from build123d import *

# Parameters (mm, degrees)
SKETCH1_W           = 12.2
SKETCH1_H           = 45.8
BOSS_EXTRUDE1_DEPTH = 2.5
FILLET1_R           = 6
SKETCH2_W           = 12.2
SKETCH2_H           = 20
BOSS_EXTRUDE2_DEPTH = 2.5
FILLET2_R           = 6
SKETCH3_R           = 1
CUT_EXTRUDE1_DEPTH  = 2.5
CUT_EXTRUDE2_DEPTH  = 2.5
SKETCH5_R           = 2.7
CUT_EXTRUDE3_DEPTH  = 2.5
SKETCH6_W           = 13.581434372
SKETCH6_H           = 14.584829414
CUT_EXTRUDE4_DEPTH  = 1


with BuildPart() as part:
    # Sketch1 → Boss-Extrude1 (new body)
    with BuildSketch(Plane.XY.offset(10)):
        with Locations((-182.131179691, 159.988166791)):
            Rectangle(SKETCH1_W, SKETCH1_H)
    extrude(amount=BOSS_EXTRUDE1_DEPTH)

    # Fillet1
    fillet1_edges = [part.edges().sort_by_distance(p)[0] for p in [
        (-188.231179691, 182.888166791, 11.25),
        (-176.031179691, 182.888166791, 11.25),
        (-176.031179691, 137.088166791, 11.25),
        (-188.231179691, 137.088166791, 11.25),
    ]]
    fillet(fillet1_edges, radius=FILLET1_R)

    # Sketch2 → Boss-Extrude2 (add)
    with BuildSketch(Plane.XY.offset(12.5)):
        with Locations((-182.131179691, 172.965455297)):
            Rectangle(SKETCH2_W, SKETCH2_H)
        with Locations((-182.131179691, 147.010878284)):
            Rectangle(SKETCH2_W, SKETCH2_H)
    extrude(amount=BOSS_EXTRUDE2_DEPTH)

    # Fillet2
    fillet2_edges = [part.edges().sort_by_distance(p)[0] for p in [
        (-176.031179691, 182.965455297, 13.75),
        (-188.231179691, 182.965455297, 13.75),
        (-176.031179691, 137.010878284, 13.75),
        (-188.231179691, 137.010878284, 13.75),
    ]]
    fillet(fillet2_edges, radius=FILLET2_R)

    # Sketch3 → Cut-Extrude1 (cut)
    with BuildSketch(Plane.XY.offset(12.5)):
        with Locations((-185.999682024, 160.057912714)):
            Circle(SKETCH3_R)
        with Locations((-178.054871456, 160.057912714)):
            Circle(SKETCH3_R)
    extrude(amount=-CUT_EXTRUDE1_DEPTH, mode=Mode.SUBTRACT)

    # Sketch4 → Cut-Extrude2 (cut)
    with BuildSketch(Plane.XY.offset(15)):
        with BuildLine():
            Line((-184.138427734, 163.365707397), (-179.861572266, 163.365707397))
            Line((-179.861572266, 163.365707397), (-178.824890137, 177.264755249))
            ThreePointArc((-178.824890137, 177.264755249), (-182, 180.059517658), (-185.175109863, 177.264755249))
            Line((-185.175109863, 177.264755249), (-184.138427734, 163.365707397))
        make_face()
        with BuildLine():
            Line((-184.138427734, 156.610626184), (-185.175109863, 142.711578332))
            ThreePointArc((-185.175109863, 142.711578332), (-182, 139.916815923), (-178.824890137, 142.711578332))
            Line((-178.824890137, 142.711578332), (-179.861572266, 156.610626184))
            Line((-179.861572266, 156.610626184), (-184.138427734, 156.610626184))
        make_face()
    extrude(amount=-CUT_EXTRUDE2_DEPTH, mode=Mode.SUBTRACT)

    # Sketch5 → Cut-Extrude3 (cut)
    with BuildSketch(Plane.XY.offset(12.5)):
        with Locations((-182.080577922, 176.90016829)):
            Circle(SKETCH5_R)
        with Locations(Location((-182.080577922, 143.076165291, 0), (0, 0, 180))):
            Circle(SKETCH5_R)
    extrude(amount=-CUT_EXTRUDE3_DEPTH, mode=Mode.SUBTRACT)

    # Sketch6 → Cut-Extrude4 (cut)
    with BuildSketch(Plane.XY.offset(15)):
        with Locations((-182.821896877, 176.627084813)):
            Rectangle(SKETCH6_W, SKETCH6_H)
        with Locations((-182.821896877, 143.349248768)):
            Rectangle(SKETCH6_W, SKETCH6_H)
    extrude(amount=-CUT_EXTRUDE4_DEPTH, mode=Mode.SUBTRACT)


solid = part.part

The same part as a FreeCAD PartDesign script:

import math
import FreeCAD as App
import Part
import Sketcher

V = App.Vector


def edges_at(feature, points):
    """Names of the edges that pass closest to the given points."""
    edges = feature.Shape.Edges
    near = lambda p: min(range(len(edges)), key=lambda i: edges[i].distToShape(Part.Vertex(*p))[0])
    return sorted({f"Edge{near(p) + 1}" for p in points})


def add_polygon(sketch, points):
    """Adds a closed chain of lines whose ends are joined by coincident constraints."""
    first, n = sketch.GeometryCount, len(points)
    for a, b in zip(points, points[1:] + points[:1]):
        sketch.addGeometry(Part.LineSegment(App.Vector(*a, 0), App.Vector(*b, 0)), False)
    for i in range(n):
        sketch.addConstraint(Sketcher.Constraint("Coincident", first + i, 2, first + (i + 1) % n, 1))

doc = App.newDocument("Part")
params = doc.addObject("Spreadsheet::Sheet", "Params")
for row, (alias, value) in enumerate([
    ("sketch1_width", "12.2 mm"),
    ("sketch1_height", "45.8 mm"),
    ("pad1_length", "2.5 mm"),
    ("fillet_radius", "6 mm"),
    ("sketch2_height", "20 mm"),
    ("sketch2_width", "12.2 mm"),
    ("pad2_length", "2.5 mm"),
    ("fillet2_radius", "6 mm"),
    ("sketch3_diameter", "2 mm"),
    ("pocket1_length", "2.5 mm"),
    ("pocket2_length", "2.5 mm"),
    ("sketch5_diameter", "5.4 mm"),
    ("pocket3_length", "2.5 mm"),
    ("pocket4_length", "1 mm"),
], start=1):
    params.set(f"A{row}", alias)
    params.set(f"B{row}", "=" + value)
    params.setAlias(f"B{row}", alias)

body = doc.addObject("PartDesign::Body", "Body")

# Sketch on XY plane
sketch1 = doc.addObject("Sketcher::SketchObject", "Sketch")
body.addObject(sketch1)
sketch1.AttachmentSupport = (doc.XY_Plane, [""])
sketch1.MapMode = "FlatFace"
sketch1.AttachmentOffset = App.Placement(V(0, 0, 10), App.Rotation())
add_polygon(sketch1, [(-188.23118, 182.888167), (-188.23118, 137.088167), (-176.03118, 137.088167), (-176.03118, 182.888167)])  # lines 0-3
sketch1.addConstraint([
    Sketcher.Constraint("Vertical", 0),
    Sketcher.Constraint("Horizontal", 1),
    Sketcher.Constraint("Vertical", 2),
    Sketcher.Constraint("Horizontal", 3),
    Sketcher.Constraint("DistanceX", 1, 1, 1, 2, 12.2),
    Sketcher.Constraint("DistanceY", 0, 2, 0, 1, 45.8),
    Sketcher.Constraint("DistanceX", 0, 2, -1, 1, 188.23118),
    Sketcher.Constraint("DistanceY", -1, 1, 0, 2, 137.088167),
])
sketch1.setExpression("Constraints[8]", "Params.sketch1_width")
sketch1.setExpression("Constraints[9]", "Params.sketch1_height")
pad1 = doc.addObject("PartDesign::Pad", "Pad")
body.addObject(pad1)
pad1.Profile = sketch1
pad1.setExpression("Length", "Params.pad1_length")
doc.recompute()

fillet = doc.addObject("PartDesign::Fillet", "Fillet")
body.addObject(fillet)
fillet.Base = (pad1, edges_at(pad1, [
    (-188.231, 182.888, 11.25),
    (-176.031, 182.888, 11.25),
    (-176.031, 137.088, 11.25),
    (-188.231, 137.088, 11.25),
]))
fillet.setExpression("Radius", "Params.fillet_radius")

# Sketch on XY plane
sketch2 = doc.addObject("Sketcher::SketchObject", "Sketch001")
body.addObject(sketch2)
sketch2.AttachmentSupport = (doc.XY_Plane, [""])
sketch2.MapMode = "FlatFace"
sketch2.AttachmentOffset = App.Placement(V(0, 0, 12.5), App.Rotation())
add_polygon(sketch2, [(-188.23118, 182.965455), (-188.23118, 162.965455), (-176.03118, 162.965455), (-176.03118, 182.965455)])  # lines 0-3
add_polygon(sketch2, [(-188.23118, 157.010878), (-188.23118, 137.010878), (-176.03118, 137.010878), (-176.03118, 157.010878)])  # lines 4-7
sketch2.addConstraint([
    Sketcher.Constraint("Vertical", 0),
    Sketcher.Constraint("Horizontal", 1),
    Sketcher.Constraint("Vertical", 2),
    Sketcher.Constraint("Horizontal", 3),
    Sketcher.Constraint("Vertical", 4),
    Sketcher.Constraint("Horizontal", 5),
    Sketcher.Constraint("Vertical", 6),
    Sketcher.Constraint("Horizontal", 7),
    Sketcher.Constraint("Vertical", 3, 2, 4, 2),
    Sketcher.Constraint("Vertical", 2, 2, 5, 2),
    Sketcher.Constraint("Equal", 2, 4),
    Sketcher.Constraint("DistanceY", 0, 2, 0, 1, 20.0),
    Sketcher.Constraint("DistanceX", 1, 1, 1, 2, 12.2),
    Sketcher.Constraint("DistanceX", 0, 2, -1, 1, 188.23118),
    Sketcher.Constraint("DistanceY", -1, 1, 4, 2, 137.010878),
    Sketcher.Constraint("DistanceY", -1, 1, 0, 2, 162.965455),
])
sketch2.setExpression("Constraints[19]", "Params.sketch2_height")
sketch2.setExpression("Constraints[20]", "Params.sketch2_width")
pad2 = doc.addObject("PartDesign::Pad", "Pad001")
body.addObject(pad2)
pad2.Profile = sketch2
pad2.setExpression("Length", "Params.pad2_length")
doc.recompute()

fillet2 = doc.addObject("PartDesign::Fillet", "Fillet001")
body.addObject(fillet2)
fillet2.Base = (pad2, edges_at(pad2, [
    (-176.031, 182.965, 13.75),
    (-188.231, 182.965, 13.75),
    (-176.031, 137.011, 13.75),
    (-188.231, 137.011, 13.75),
]))
fillet2.setExpression("Radius", "Params.fillet2_radius")

# Sketch on XY plane
sketch3 = doc.addObject("Sketcher::SketchObject", "Sketch002")
body.addObject(sketch3)
sketch3.AttachmentSupport = (doc.XY_Plane, [""])
sketch3.MapMode = "FlatFace"
sketch3.AttachmentOffset = App.Placement(V(0, 0, 12.5), App.Rotation())
sketch3.addGeometry([
    Part.Circle(V(-185.999682, 160.057913, 0), V(0, 0, 1), 1),
    Part.Circle(V(-178.054871, 160.057913, 0), V(0, 0, 1), 1),
], False)
sketch3.addConstraint([
    Sketcher.Constraint("Equal", 0, 1),
    Sketcher.Constraint("Horizontal", 0, 3, 1, 3),
    Sketcher.Constraint("Diameter", 0, 2.0),
    Sketcher.Constraint("DistanceX", 1, 3, -1, 1, 178.054871),
    Sketcher.Constraint("DistanceX", 0, 3, 1, 3, 7.944811),
    Sketcher.Constraint("DistanceY", -1, 1, 0, 3, 160.057913),
])
sketch3.setExpression("Constraints[2]", "Params.sketch3_diameter")
pocket1 = doc.addObject("PartDesign::Pocket", "Pocket")
body.addObject(pocket1)
pocket1.Profile = sketch3
pocket1.setExpression("Length", "Params.pocket1_length")

# Sketch on XY plane
sketch4 = doc.addObject("Sketcher::SketchObject", "Sketch003")
body.addObject(sketch4)
sketch4.AttachmentSupport = (doc.XY_Plane, [""])
sketch4.MapMode = "FlatFace"
sketch4.AttachmentOffset = App.Placement(V(0, 0, 15), App.Rotation())
sketch4.addGeometry([
    Part.LineSegment(V(-184.138428, 163.365707, 0), V(-179.861572, 163.365707, 0)),  # 0
    Part.LineSegment(V(-179.861572, 163.365707, 0), V(-178.82489, 177.264755, 0)),  # 1
    Part.ArcOfCircle(Part.Circle(V(-182, 176.858526, 0), V(0, 0, 1), 3.200991), math.radians(7.290906), math.radians(172.709094)),  # 2
    Part.LineSegment(V(-185.17511, 177.264755, 0), V(-184.138428, 163.365707, 0)),  # 3
    Part.LineSegment(V(-184.138428, 156.610626, 0), V(-185.17511, 142.711578, 0)),  # 4
    Part.ArcOfCircle(Part.Circle(V(-182, 143.117807, 0), V(0, 0, 1), 3.200991), math.radians(-172.709094), math.radians(-7.290906)),  # 5
    Part.LineSegment(V(-178.82489, 142.711578, 0), V(-179.861572, 156.610626, 0)),  # 6
    Part.LineSegment(V(-179.861572, 156.610626, 0), V(-184.138428, 156.610626, 0)),  # 7
], False)
sketch4.addConstraint([
    Sketcher.Constraint("Coincident", 0, 2, 1, 1),
    Sketcher.Constraint("Coincident", 1, 2, 2, 1),
    Sketcher.Constraint("Coincident", 2, 2, 3, 1),
    Sketcher.Constraint("Coincident", 3, 2, 0, 1),
    Sketcher.Constraint("Coincident", 4, 2, 5, 1),
    Sketcher.Constraint("Coincident", 5, 2, 6, 1),
    Sketcher.Constraint("Coincident", 6, 2, 7, 1),
    Sketcher.Constraint("Coincident", 7, 2, 4, 1),
    Sketcher.Constraint("Horizontal", 0),
    Sketcher.Constraint("Horizontal", 7),
    Sketcher.Constraint("Equal", 2, 5),
    Sketcher.Constraint("Parallel", 1, 4),
    Sketcher.Constraint("Parallel", 3, 6),
    Sketcher.Constraint("Horizontal", 1, 2, 2, 2),
    Sketcher.Constraint("Horizontal", 4, 2, 5, 2),
    Sketcher.Constraint("Vertical", 2, 3, 5, 3),
    Sketcher.Constraint("Vertical", 2, 2, 4, 2),
    Sketcher.Constraint("Vertical", 0, 2, 6, 2),
    Sketcher.Constraint("Vertical", 3, 2, 7, 2),
    Sketcher.Constraint("DistanceX", 2, 3, -1, 1, 182.0),
    Sketcher.Constraint("Radius", 2, 3.200991),
    Sketcher.Constraint("DistanceY", 5, 3, 0, 2, 20.2479),
    Sketcher.Constraint("DistanceX", 0, 1, 0, 2, 4.276855),
    Sketcher.Constraint("DistanceX", 1, 2, -1, 1, 178.82489),
    Sketcher.Constraint("DistanceY", -1, 1, 4, 2, 142.711578),
    Sketcher.Constraint("DistanceY", 5, 3, 2, 3, 33.740719),
])
pocket2 = doc.addObject("PartDesign::Pocket", "Pocket001")
body.addObject(pocket2)
pocket2.Profile = sketch4
pocket2.setExpression("Length", "Params.pocket2_length")

# Sketch on XY plane
sketch5 = doc.addObject("Sketcher::SketchObject", "Sketch004")
body.addObject(sketch5)
sketch5.AttachmentSupport = (doc.XY_Plane, [""])
sketch5.MapMode = "FlatFace"
sketch5.AttachmentOffset = App.Placement(V(0, 0, 12.5), App.Rotation())
sketch5.addGeometry([
    Part.Circle(V(-182.080578, 176.900168, 0), V(0, 0, 1), 2.7),
    Part.Circle(V(-182.080578, 143.076165, 0), V(0, 0, 1), 2.7),
], False)
sketch5.addConstraint([
    Sketcher.Constraint("Equal", 0, 1),
    Sketcher.Constraint("Vertical", 0, 3, 1, 3),
    Sketcher.Constraint("Diameter", 0, 5.4),
    Sketcher.Constraint("DistanceY", -1, 1, 0, 3, 176.900168),
    Sketcher.Constraint("DistanceX", 0, 3, -1, 1, 182.080578),
    Sketcher.Constraint("DistanceY", -1, 1, 1, 3, 143.076165),
])
sketch5.setExpression("Constraints[2]", "Params.sketch5_diameter")
pocket3 = doc.addObject("PartDesign::Pocket", "Pocket002")
body.addObject(pocket3)
pocket3.Profile = sketch5
pocket3.setExpression("Length", "Params.pocket3_length")

# Sketch on XY plane
sketch6 = doc.addObject("Sketcher::SketchObject", "Sketch005")
body.addObject(sketch6)
sketch6.AttachmentSupport = (doc.XY_Plane, [""])
sketch6.MapMode = "FlatFace"
sketch6.AttachmentOffset = App.Placement(V(0, 0, 15), App.Rotation())
add_polygon(sketch6, [(-189.612614, 183.9195), (-189.612614, 169.33467), (-176.03118, 169.33467), (-176.03118, 183.9195)])  # lines 0-3
add_polygon(sketch6, [(-189.612614, 150.641663), (-189.612614, 136.056834), (-176.03118, 136.056834), (-176.03118, 150.641663)])  # lines 4-7
sketch6.addConstraint([
    Sketcher.Constraint("Vertical", 0),
    Sketcher.Constraint("Horizontal", 1),
    Sketcher.Constraint("Vertical", 2),
    Sketcher.Constraint("Horizontal", 3),
    Sketcher.Constraint("Vertical", 4),
    Sketcher.Constraint("Horizontal", 5),
    Sketcher.Constraint("Vertical", 6),
    Sketcher.Constraint("Horizontal", 7),
    Sketcher.Constraint("Vertical", 3, 2, 4, 2),
    Sketcher.Constraint("Vertical", 2, 2, 5, 2),
    Sketcher.Constraint("Equal", 2, 4),
    Sketcher.Constraint("DistanceY", 0, 2, 0, 1, 14.584829),
    Sketcher.Constraint("DistanceY", -1, 1, 2, 2, 183.9195),
    Sketcher.Constraint("DistanceX", 1, 1, 1, 2, 13.581434),
    Sketcher.Constraint("DistanceX", 1, 2, -1, 1, 176.03118),
    Sketcher.Constraint("DistanceY", -1, 1, 4, 2, 136.056834),
])
pocket4 = doc.addObject("PartDesign::Pocket", "Pocket003")
body.addObject(pocket4)
pocket4.Profile = sketch6
pocket4.setExpression("Length", "Params.pocket4_length")

doc.recompute()
